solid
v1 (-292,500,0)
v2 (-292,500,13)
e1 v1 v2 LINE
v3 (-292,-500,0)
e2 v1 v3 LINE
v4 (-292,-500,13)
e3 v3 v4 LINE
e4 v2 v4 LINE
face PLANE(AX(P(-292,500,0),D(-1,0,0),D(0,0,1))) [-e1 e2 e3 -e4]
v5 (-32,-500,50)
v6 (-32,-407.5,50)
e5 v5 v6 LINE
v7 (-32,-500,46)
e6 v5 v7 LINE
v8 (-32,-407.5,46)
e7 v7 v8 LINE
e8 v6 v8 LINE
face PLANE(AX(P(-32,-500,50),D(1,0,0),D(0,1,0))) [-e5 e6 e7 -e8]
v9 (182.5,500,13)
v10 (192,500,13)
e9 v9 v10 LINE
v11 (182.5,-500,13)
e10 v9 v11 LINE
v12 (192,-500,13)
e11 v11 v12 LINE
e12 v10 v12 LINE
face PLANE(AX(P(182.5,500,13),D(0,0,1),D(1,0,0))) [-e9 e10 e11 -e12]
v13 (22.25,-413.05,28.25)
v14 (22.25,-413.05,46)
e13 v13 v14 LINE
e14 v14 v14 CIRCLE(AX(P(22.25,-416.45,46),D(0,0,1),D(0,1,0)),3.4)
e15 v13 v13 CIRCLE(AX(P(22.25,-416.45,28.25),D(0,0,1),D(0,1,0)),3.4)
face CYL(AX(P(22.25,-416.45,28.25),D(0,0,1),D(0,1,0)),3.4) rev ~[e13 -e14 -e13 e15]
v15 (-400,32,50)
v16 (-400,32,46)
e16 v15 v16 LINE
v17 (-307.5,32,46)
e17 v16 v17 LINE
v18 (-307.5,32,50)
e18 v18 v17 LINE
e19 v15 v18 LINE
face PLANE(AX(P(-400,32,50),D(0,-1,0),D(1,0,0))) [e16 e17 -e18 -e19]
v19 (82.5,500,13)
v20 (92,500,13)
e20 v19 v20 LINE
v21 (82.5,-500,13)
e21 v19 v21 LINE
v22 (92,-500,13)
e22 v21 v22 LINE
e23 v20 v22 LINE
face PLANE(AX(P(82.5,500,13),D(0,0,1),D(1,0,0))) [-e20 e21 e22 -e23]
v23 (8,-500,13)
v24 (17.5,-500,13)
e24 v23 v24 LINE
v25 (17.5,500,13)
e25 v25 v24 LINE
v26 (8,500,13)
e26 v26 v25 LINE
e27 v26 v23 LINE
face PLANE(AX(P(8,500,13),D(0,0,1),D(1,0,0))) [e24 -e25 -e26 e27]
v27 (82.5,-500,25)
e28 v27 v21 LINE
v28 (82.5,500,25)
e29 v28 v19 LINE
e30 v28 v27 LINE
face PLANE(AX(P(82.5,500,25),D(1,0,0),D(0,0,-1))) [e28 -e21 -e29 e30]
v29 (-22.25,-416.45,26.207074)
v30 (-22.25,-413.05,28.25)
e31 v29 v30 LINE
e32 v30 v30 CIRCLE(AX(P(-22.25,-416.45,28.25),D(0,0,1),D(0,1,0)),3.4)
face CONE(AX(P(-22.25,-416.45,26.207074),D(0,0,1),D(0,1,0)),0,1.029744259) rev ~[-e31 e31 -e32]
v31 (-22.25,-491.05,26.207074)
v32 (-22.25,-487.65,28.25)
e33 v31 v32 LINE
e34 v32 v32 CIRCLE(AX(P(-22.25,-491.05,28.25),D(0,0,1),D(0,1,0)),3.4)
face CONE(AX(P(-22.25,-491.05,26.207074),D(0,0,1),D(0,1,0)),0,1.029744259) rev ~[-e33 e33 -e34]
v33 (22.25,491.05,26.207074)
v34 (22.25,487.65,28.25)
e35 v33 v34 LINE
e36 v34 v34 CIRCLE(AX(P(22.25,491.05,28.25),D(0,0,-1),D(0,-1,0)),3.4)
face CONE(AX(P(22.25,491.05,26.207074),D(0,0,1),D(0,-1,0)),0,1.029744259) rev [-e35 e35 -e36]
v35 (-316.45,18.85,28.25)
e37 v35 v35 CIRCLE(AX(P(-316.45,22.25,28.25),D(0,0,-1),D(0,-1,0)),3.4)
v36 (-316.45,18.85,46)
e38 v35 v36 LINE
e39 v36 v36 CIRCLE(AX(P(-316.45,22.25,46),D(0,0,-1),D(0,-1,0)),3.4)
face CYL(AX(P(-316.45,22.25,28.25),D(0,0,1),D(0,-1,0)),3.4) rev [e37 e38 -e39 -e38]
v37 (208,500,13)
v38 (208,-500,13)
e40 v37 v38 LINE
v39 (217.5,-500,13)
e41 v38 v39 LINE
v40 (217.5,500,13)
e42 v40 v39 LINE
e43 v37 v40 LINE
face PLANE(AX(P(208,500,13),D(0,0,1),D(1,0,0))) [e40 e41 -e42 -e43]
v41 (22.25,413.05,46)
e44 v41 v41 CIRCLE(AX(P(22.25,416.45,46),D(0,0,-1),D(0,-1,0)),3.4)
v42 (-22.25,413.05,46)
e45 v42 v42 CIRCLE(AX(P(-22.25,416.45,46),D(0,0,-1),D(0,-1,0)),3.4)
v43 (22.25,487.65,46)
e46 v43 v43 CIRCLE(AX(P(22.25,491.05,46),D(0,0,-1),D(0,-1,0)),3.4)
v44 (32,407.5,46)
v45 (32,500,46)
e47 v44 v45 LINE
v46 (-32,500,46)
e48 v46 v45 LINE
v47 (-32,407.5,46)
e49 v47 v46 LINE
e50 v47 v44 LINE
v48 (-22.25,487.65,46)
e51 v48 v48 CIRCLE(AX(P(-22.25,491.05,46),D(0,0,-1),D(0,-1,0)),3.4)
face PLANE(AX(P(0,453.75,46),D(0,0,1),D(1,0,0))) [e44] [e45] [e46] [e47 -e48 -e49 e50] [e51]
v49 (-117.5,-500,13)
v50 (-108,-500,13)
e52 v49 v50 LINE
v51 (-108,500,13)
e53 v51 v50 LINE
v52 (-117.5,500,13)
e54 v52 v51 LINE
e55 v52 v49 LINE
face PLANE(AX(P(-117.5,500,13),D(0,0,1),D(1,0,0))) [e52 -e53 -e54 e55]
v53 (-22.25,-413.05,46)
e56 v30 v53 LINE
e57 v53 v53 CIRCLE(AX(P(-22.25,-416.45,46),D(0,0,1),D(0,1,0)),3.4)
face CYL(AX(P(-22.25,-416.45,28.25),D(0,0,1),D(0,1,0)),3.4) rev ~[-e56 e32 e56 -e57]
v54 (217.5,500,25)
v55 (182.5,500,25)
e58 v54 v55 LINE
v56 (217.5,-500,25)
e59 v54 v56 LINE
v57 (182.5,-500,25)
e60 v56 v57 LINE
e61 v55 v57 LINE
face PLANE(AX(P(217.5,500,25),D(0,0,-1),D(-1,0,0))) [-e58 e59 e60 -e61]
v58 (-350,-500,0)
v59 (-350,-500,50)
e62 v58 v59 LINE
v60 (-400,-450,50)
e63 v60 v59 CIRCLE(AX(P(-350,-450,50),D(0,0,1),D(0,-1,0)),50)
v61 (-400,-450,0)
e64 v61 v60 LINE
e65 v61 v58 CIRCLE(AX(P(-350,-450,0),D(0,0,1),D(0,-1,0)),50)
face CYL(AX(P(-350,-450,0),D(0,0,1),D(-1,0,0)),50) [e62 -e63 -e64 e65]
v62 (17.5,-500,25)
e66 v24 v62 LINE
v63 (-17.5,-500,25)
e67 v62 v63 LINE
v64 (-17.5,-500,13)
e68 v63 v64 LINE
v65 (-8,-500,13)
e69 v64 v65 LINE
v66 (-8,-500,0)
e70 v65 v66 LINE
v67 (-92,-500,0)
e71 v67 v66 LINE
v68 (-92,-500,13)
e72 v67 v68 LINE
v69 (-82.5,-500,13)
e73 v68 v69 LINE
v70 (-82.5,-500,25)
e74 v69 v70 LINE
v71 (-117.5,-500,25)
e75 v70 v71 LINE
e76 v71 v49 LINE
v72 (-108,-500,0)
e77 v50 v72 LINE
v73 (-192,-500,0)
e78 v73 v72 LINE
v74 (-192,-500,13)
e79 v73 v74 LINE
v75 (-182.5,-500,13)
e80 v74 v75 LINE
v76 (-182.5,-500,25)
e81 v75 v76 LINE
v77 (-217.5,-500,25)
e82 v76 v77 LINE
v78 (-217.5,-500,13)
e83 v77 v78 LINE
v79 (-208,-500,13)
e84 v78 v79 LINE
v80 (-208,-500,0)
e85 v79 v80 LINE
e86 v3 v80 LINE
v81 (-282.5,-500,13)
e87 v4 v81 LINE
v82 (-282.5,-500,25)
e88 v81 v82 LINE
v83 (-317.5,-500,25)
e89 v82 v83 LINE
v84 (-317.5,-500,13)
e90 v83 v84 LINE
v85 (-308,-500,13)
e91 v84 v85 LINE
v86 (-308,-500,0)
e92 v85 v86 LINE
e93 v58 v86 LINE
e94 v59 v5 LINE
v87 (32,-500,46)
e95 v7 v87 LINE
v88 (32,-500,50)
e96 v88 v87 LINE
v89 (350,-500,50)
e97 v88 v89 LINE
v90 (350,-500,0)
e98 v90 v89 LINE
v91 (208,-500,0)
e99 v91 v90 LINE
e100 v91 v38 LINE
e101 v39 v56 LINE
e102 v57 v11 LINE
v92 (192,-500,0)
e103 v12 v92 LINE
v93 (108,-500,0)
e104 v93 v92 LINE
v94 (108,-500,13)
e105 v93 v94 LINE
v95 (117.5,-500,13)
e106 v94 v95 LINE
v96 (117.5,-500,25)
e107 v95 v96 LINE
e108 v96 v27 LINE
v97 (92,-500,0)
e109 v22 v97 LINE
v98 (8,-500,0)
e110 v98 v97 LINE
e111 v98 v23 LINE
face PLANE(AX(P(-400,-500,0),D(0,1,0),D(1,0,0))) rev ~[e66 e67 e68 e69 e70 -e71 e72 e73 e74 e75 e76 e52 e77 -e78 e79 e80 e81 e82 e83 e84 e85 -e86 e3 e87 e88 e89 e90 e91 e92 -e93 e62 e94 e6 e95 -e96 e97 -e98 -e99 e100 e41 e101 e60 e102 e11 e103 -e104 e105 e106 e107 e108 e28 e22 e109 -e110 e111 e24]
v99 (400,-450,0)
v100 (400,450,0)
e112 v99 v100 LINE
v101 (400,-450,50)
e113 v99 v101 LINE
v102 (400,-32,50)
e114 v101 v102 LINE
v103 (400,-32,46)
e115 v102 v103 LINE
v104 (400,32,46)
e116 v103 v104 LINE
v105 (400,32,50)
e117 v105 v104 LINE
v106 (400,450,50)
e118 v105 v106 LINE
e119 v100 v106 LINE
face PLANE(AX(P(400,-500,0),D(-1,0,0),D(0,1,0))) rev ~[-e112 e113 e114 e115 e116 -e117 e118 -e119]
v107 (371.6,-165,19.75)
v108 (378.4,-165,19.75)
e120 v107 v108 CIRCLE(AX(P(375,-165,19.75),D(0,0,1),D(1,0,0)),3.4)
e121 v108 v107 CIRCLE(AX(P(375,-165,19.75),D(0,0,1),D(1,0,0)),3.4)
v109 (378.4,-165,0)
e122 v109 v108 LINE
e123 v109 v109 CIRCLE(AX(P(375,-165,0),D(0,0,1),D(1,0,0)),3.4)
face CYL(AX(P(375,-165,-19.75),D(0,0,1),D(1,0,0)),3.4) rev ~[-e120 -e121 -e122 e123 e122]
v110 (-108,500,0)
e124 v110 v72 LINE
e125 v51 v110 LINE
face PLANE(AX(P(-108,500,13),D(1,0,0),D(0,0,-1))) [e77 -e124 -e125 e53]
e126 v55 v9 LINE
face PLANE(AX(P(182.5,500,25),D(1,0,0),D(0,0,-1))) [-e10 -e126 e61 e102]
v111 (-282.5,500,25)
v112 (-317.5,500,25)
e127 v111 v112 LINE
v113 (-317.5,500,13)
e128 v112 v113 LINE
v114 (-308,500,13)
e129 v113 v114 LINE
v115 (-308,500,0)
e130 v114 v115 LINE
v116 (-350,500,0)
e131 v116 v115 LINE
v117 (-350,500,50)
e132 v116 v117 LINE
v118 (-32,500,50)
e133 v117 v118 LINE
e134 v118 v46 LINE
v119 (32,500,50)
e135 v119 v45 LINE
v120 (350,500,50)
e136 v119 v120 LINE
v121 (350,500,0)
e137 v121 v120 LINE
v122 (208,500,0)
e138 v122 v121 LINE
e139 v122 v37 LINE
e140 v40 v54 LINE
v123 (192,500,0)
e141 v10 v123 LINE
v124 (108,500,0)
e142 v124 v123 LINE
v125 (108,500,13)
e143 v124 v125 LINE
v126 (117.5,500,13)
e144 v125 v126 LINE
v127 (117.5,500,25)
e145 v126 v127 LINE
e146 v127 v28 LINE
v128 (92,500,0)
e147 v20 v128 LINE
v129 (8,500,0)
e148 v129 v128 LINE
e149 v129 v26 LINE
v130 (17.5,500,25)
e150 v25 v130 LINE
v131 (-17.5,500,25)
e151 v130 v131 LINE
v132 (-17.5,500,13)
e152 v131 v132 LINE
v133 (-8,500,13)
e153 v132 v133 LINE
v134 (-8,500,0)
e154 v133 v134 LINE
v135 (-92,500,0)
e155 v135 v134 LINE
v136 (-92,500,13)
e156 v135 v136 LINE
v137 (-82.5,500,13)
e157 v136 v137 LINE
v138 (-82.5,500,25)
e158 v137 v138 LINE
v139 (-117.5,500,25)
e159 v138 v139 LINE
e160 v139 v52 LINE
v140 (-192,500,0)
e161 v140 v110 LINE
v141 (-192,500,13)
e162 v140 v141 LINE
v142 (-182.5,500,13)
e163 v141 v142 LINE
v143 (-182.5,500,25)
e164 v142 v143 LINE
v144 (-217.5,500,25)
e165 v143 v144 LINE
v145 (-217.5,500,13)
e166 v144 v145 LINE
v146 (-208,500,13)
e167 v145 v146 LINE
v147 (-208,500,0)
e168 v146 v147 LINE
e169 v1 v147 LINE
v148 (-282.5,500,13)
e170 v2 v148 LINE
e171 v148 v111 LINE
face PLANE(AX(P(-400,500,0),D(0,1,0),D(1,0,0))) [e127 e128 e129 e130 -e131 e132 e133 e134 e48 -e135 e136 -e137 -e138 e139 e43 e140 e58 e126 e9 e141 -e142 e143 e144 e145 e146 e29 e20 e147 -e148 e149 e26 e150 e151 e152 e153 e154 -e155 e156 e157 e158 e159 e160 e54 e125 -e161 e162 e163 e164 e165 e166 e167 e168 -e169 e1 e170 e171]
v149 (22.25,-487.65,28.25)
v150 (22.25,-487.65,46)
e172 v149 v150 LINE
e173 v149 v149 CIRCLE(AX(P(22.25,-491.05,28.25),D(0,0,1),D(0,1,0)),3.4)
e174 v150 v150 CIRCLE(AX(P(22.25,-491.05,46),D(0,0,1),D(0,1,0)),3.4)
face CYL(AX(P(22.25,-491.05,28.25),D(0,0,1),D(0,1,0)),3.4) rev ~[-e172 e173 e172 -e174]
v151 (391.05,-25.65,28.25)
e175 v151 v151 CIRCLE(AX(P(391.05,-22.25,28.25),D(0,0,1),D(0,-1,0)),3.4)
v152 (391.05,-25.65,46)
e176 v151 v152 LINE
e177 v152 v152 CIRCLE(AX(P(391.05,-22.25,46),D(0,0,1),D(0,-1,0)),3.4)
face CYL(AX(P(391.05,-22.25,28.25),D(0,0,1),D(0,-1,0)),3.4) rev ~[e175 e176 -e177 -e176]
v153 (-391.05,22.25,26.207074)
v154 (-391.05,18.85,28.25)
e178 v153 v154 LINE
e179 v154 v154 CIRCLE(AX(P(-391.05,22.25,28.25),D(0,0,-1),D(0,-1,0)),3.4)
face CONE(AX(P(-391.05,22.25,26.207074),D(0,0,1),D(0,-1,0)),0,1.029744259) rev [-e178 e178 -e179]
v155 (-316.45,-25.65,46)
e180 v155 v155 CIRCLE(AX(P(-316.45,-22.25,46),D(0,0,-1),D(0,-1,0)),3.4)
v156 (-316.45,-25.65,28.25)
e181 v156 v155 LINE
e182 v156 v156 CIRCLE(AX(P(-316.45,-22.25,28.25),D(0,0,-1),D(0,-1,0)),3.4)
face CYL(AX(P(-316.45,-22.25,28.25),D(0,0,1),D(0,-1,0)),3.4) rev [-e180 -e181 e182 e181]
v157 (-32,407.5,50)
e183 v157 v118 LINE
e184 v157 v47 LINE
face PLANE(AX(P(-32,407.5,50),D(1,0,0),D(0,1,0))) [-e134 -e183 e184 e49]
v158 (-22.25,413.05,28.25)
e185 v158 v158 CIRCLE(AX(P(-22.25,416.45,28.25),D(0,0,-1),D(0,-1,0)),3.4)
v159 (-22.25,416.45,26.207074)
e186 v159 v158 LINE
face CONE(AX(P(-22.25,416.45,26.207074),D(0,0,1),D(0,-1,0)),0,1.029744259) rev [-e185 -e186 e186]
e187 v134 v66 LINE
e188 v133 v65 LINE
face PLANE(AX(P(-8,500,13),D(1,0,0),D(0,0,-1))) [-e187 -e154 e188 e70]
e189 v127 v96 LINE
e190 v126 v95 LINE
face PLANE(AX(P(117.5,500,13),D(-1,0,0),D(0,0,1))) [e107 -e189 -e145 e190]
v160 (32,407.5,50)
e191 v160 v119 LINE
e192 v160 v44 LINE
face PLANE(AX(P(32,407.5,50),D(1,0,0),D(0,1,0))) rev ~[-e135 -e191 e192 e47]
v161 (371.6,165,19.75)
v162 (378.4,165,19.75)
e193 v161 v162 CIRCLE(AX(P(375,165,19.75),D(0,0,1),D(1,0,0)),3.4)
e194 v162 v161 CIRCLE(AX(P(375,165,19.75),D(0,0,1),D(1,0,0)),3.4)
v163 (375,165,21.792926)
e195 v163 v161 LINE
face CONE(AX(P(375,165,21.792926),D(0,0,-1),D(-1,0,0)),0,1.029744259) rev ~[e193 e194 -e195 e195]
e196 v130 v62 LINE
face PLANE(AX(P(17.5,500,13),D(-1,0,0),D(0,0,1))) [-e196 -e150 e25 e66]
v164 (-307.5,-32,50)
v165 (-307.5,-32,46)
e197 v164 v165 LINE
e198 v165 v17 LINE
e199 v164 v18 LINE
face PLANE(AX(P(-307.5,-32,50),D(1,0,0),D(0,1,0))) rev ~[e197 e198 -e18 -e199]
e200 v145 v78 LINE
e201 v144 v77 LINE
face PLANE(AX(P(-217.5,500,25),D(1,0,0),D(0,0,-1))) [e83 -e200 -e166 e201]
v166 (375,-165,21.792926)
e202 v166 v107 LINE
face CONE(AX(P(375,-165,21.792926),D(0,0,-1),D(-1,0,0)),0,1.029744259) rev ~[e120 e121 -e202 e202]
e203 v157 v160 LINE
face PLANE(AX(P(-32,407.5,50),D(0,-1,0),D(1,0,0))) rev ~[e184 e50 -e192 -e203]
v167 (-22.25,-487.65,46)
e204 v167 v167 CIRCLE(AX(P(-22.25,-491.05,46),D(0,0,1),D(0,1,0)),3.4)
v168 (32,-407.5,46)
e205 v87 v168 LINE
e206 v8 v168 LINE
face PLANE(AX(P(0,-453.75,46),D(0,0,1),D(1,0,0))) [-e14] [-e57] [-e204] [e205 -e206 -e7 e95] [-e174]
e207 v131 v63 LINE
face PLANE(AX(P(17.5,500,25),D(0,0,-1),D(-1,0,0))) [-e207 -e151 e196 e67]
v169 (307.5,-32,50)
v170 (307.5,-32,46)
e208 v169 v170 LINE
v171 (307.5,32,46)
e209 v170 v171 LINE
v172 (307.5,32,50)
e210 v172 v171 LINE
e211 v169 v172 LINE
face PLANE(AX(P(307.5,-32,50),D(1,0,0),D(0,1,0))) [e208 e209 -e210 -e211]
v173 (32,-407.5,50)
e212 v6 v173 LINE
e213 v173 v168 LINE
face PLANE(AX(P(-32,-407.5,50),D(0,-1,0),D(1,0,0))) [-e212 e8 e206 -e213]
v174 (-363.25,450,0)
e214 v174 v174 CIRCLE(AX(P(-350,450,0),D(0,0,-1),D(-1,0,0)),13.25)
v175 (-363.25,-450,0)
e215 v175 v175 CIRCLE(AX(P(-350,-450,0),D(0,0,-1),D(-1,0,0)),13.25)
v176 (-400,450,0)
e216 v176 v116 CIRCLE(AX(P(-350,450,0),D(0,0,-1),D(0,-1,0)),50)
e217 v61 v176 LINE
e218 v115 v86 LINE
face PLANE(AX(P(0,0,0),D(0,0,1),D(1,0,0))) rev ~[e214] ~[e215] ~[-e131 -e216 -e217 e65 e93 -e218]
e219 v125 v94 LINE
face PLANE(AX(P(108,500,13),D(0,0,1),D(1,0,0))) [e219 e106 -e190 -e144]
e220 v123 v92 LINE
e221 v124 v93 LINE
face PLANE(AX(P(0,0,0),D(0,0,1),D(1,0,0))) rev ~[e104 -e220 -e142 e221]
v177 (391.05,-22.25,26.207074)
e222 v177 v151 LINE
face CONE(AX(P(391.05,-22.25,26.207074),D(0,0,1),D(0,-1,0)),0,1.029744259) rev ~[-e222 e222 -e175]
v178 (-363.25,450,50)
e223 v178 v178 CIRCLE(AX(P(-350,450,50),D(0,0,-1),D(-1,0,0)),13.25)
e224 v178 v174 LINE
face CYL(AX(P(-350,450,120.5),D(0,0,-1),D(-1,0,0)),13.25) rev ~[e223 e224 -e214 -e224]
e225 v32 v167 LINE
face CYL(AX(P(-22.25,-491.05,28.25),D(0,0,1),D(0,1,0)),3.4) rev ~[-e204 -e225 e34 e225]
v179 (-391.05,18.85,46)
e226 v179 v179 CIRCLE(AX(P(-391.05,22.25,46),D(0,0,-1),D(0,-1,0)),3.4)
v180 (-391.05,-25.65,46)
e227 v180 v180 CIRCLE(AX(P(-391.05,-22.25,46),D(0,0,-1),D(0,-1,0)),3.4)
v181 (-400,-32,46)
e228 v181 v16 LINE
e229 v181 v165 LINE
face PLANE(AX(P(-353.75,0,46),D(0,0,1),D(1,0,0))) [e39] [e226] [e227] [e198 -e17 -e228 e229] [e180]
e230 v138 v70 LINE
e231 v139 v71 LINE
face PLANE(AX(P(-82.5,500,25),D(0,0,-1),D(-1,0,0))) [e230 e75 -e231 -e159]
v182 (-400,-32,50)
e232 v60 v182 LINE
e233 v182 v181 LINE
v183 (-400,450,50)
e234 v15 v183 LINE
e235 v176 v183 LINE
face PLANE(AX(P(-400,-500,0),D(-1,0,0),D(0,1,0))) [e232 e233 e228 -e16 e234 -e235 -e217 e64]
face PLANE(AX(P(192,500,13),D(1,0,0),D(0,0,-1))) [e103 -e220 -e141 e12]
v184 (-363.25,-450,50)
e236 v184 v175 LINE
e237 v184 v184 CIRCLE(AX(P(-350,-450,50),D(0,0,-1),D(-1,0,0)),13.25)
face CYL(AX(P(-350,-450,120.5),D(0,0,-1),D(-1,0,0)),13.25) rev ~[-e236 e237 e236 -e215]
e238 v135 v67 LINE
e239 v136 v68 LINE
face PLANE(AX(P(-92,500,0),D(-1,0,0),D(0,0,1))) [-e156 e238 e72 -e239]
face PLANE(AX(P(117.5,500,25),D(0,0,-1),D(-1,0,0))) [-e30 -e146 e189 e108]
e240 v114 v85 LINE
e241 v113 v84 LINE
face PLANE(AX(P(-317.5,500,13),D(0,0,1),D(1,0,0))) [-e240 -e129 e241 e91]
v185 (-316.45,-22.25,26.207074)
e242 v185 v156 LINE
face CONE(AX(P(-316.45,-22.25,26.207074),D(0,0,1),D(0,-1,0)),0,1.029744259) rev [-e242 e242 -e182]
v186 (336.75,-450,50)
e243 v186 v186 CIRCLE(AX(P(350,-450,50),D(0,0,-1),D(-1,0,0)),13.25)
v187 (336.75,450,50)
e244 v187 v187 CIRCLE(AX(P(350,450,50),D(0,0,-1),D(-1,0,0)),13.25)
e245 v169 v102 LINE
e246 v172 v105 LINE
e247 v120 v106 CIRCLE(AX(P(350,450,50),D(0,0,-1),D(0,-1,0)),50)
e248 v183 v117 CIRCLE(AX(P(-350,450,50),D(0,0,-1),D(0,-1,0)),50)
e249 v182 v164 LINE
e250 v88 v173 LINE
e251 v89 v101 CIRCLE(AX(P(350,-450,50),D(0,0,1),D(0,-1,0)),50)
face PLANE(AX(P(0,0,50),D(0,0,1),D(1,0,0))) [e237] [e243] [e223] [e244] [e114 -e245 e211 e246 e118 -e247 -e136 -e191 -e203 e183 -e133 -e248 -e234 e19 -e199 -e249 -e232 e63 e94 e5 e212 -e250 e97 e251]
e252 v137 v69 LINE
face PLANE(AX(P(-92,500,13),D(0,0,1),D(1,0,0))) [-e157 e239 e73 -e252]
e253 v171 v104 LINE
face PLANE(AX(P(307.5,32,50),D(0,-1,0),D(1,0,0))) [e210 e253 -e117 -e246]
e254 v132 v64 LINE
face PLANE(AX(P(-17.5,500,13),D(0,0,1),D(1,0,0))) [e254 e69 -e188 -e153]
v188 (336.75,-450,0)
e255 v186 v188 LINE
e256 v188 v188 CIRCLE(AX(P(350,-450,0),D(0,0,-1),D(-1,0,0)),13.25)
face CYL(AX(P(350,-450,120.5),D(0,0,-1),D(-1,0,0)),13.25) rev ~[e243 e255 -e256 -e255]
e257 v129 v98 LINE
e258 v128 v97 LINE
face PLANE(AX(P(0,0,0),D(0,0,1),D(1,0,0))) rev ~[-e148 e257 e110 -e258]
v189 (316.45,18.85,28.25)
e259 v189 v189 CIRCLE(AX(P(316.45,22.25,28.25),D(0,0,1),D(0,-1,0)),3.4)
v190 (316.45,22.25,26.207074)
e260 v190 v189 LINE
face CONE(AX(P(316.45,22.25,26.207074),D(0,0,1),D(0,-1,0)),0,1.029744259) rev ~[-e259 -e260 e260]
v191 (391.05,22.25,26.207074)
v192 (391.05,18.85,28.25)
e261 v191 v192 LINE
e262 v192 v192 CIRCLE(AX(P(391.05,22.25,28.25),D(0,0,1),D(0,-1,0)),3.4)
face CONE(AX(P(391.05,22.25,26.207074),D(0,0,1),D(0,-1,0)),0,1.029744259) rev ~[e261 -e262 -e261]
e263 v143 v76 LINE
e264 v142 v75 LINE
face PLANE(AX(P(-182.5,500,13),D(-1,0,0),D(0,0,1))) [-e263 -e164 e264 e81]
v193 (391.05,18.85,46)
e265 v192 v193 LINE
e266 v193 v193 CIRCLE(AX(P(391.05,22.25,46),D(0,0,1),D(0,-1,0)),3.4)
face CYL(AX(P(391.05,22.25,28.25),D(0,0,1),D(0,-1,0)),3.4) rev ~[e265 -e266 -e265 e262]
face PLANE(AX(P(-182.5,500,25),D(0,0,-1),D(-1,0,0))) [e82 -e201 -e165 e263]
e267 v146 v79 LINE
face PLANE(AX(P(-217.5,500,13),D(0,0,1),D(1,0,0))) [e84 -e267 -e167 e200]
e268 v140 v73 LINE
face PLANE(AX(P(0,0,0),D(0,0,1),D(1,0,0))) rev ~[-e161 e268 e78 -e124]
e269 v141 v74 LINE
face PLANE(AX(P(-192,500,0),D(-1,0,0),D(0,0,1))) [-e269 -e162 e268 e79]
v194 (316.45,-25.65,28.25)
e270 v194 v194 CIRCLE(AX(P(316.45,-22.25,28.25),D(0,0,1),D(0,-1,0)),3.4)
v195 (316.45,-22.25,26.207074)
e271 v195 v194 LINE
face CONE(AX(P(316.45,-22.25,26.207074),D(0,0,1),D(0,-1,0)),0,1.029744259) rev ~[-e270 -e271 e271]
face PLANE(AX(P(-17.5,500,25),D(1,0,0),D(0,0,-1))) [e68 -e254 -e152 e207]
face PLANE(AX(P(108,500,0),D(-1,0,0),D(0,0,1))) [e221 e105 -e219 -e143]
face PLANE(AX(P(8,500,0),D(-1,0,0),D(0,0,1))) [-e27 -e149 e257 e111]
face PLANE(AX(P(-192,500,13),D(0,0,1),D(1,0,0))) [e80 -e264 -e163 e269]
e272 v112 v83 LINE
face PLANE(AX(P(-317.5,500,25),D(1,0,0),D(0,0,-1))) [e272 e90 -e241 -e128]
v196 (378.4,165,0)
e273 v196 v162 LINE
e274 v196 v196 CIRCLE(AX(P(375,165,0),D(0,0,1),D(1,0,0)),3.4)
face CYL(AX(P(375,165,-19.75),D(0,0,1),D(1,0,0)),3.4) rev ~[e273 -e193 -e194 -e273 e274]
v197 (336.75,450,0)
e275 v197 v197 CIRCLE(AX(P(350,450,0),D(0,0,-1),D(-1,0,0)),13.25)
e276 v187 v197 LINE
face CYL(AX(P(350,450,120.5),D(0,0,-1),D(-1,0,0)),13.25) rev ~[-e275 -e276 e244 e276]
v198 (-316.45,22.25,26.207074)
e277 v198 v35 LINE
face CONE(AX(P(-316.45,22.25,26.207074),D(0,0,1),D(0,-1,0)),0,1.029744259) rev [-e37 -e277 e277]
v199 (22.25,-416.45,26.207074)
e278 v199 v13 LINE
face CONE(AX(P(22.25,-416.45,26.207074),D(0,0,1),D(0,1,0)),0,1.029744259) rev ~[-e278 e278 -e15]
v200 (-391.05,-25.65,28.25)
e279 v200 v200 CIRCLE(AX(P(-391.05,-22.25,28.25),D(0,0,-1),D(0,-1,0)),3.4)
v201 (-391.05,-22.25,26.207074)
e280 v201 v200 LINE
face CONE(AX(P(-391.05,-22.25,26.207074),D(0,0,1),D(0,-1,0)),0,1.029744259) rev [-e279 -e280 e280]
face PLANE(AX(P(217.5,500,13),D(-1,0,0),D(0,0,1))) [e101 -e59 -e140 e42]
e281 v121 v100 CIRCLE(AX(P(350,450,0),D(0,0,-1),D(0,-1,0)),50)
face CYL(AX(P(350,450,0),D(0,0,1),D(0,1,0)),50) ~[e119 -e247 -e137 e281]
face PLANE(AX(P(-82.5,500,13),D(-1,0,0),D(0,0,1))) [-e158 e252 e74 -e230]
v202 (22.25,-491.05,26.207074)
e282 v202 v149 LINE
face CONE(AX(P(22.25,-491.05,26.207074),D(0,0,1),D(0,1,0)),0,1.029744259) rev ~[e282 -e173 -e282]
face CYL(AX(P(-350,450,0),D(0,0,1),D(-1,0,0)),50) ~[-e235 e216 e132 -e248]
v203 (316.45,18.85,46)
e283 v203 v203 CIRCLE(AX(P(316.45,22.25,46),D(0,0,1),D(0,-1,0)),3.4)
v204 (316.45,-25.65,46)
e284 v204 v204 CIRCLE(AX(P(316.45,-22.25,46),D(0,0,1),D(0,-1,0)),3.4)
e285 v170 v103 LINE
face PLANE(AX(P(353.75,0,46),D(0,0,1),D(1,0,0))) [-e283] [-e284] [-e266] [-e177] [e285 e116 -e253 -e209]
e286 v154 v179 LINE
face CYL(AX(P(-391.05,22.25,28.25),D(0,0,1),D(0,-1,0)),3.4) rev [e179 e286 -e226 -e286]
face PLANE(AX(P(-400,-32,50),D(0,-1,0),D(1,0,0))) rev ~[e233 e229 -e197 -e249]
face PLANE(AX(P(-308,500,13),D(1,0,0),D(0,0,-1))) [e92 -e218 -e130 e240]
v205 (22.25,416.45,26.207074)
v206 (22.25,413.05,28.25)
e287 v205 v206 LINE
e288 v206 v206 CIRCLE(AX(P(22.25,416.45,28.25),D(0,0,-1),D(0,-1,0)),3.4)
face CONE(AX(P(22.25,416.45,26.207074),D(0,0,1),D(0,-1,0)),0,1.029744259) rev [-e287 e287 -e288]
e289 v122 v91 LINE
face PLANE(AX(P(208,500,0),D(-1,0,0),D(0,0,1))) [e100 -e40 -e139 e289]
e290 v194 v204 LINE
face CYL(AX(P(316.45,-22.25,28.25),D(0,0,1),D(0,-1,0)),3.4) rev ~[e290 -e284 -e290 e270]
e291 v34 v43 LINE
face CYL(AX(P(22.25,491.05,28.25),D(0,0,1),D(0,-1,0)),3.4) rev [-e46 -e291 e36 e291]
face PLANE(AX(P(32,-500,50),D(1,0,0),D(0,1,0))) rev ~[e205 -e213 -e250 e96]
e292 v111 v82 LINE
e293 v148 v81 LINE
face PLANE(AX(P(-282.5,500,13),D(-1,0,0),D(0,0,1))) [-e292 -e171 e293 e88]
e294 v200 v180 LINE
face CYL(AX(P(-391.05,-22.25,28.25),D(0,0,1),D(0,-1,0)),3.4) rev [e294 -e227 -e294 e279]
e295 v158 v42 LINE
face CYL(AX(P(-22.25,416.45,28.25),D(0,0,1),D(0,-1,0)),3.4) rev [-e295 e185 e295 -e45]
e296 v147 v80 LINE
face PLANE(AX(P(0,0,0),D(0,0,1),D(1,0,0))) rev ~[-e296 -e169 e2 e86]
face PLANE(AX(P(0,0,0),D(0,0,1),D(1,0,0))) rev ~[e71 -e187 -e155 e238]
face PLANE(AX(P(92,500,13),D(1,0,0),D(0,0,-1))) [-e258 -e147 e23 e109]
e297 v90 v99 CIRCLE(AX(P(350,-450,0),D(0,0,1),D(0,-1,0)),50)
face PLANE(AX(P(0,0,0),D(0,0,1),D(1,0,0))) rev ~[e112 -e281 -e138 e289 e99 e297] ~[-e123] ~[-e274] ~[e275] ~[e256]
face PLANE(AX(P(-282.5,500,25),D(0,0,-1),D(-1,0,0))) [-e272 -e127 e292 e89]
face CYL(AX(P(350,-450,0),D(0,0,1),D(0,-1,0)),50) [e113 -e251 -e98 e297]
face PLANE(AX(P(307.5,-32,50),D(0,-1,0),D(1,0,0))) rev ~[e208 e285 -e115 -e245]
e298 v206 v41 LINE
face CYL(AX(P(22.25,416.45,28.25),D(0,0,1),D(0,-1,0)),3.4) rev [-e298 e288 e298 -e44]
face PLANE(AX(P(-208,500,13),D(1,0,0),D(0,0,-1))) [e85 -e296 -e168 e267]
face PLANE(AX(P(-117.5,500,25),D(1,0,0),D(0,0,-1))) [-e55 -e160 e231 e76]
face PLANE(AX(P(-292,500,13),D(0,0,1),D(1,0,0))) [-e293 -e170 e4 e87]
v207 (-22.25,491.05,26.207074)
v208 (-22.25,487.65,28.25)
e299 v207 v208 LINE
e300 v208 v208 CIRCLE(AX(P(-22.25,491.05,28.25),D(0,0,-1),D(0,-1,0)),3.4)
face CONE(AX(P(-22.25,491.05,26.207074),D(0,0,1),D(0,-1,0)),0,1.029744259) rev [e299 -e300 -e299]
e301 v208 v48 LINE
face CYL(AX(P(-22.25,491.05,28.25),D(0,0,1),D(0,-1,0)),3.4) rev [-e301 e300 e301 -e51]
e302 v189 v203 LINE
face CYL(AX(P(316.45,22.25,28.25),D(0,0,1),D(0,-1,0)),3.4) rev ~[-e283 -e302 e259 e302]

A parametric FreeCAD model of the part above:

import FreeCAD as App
import Part
import Sketcher

V = App.Vector
Q = App.Units.Quantity


def edges_at(feature, points):
    """Names of the edges that pass closest to the given points."""
    edges = feature.Shape.Edges
    near = lambda p: min(range(len(edges)), key=lambda i: edges[i].distToShape(Part.Vertex(*p))[0])
    return sorted({f"Edge{near(p) + 1}" for p in points})


def add_polygon(sketch, points):
    """Adds a closed chain of lines whose ends are joined by coincident constraints."""
    first, n = sketch.GeometryCount, len(points)
    for a, b in zip(points, points[1:] + points[:1]):
        sketch.addGeometry(Part.LineSegment(App.Vector(*a, 0), App.Vector(*b, 0)), False)
    for i in range(n):
        sketch.addConstraint(Sketcher.Constraint("Coincident", first + i, 2, first + (i + 1) % n, 1))

doc = App.newDocument("Part")
body = doc.addObject("PartDesign::Body", "Body")

# Sketch on XY plane
sketch1 = body.newObject("Sketcher::SketchObject", "Sketch")
sketch1.AttachmentSupport = (doc.getObject("XY_Plane"), [""])
sketch1.MapMode = "FlatFace"
add_polygon(sketch1, [(-400, 500), (-400, -500), (400, -500), (400, 500)])  # lines 0-3
sketch1.addConstraint(Sketcher.Constraint("Vertical", 0))
sketch1.addConstraint(Sketcher.Constraint("Horizontal", 1))
sketch1.addConstraint(Sketcher.Constraint("Vertical", 2))
sketch1.addConstraint(Sketcher.Constraint("Horizontal", 3))
sketch1.addConstraint(Sketcher.Constraint("Symmetric", 0, 2, 2, 2, -1, 1))
sketch1.addConstraint(Sketcher.Constraint("DistanceX", 1, 1, 1, 2, 800.0))
sketch1.addConstraint(Sketcher.Constraint("DistanceY", 0, 2, 0, 1, 1000.0))
pad1 = body.newObject("PartDesign::Pad", "Pad")
pad1.Profile = sketch1
pad1.Length = 50

# Sketch on XZ plane
sketch2 = body.newObject("Sketcher::SketchObject", "Sketch001")
sketch2.AttachmentSupport = (doc.getObject("XZ_Plane"), [""])
sketch2.MapMode = "FlatFace"
sketch2.AttachmentOffset = App.Placement(V(0, 0, -500), App.Rotation())
add_polygon(sketch2, [(8, 0), (-8, 0), (-8, 13), (-18, 13), (-18, 25), (18, 25), (18, 13), (8, 13)])  # lines 0-7
sketch2.addConstraint(Sketcher.Constraint("Horizontal", 0))
sketch2.addConstraint(Sketcher.Constraint("Vertical", 1))
sketch2.addConstraint(Sketcher.Constraint("Horizontal", 2))
sketch2.addConstraint(Sketcher.Constraint("Vertical", 3))
sketch2.addConstraint(Sketcher.Constraint("Horizontal", 4))
sketch2.addConstraint(Sketcher.Constraint("Vertical", 5))
sketch2.addConstraint(Sketcher.Constraint("Horizontal", 6))
sketch2.addConstraint(Sketcher.Constraint("Vertical", 7))
sketch2.addConstraint(Sketcher.Constraint("Symmetric", 0, 2, 7, 2, -1, 1))
sketch2.addConstraint(Sketcher.Constraint("Symmetric", 2, 2, 5, 2, -2))
sketch2.addConstraint(Sketcher.Constraint("DistanceX", 0, 2, 0, 1, 16.0))
sketch2.addConstraint(Sketcher.Constraint("DistanceX", 4, 1, 4, 2, 35.0))
sketch2.addConstraint(Sketcher.Constraint("DistanceY", 1, 1, 1, 2, 13.0))
sketch2.addConstraint(Sketcher.Constraint("DistanceY", 3, 1, 3, 2, 12.0))
pocket1 = body.newObject("PartDesign::Pocket", "Pocket")
pocket1.Profile = sketch2
pocket1.Type = "ThroughAll"
pocket1.Reversed = True
doc.recompute()

linearpattern = body.newObject("PartDesign::LinearPattern", "LinearPattern")
linearpattern.Originals = [pocket1]
linearpattern.Direction = (doc.getObject("X_Axis"), [""])
linearpattern.Mode = "offset"
linearpattern.Offset = 100
linearpattern.Occurrences = 4
linearpattern.Reversed = True
body.Tip = linearpattern
doc.recompute()

linearpattern2 = body.newObject("PartDesign::LinearPattern", "LinearPattern001")
linearpattern2.Originals = [pocket1]
linearpattern2.Direction = (doc.getObject("X_Axis"), [""])
linearpattern2.Mode = "offset"
linearpattern2.Offset = 100
linearpattern2.Occurrences = 3
body.Tip = linearpattern2
doc.recompute()

fillet = body.newObject("PartDesign::Fillet", "Fillet")
fillet.Base = (linearpattern2, edges_at(linearpattern2, [
    (400, -500, 25),
    (-400, -500, 25),
    (-400, 500, 25),
    (400, 500, 25),
]))
fillet.Radius = 50

# Sketch on XY plane
sketch3 = body.newObject("Sketcher::SketchObject", "Sketch002")
sketch3.AttachmentSupport = (doc.getObject("XY_Plane"), [""])
sketch3.MapMode = "FlatFace"
sketch3.AttachmentOffset = App.Placement(V(0, 0, 50), App.Rotation())
add_polygon(sketch3, [(-32, 500), (-32, 408), (32, 408), (32, 500)])  # lines 0-3
add_polygon(sketch3, [(-400, 32), (-400, -32), (-308, -32), (-308, 32)])  # lines 4-7
add_polygon(sketch3, [(308, 32), (308, -32), (400, -32), (400, 32)])  # lines 8-11
add_polygon(sketch3, [(-32, -408), (-32, -500), (32, -500), (32, -408)])  # lines 12-15
sketch3.addConstraint(Sketcher.Constraint("Vertical", 0))
sketch3.addConstraint(Sketcher.Constraint("Horizontal", 1))
sketch3.addConstraint(Sketcher.Constraint("Vertical", 2))
sketch3.addConstraint(Sketcher.Constraint("Horizontal", 3))
sketch3.addConstraint(Sketcher.Constraint("Vertical", 4))
sketch3.addConstraint(Sketcher.Constraint("Horizontal", 5))
sketch3.addConstraint(Sketcher.Constraint("Vertical", 6))
sketch3.addConstraint(Sketcher.Constraint("Horizontal", 7))
sketch3.addConstraint(Sketcher.Constraint("Vertical", 8))
sketch3.addConstraint(Sketcher.Constraint("Horizontal", 9))
sketch3.addConstraint(Sketcher.Constraint("Vertical", 10))
sketch3.addConstraint(Sketcher.Constraint("Horizontal", 11))
sketch3.addConstraint(Sketcher.Constraint("Vertical", 12))
sketch3.addConstraint(Sketcher.Constraint("Horizontal", 13))
sketch3.addConstraint(Sketcher.Constraint("Vertical", 14))
sketch3.addConstraint(Sketcher.Constraint("Horizontal", 15))
sketch3.addConstraint(Sketcher.Constraint("Symmetric", 6, 2, 8, 2, -1, 1))
sketch3.addConstraint(Sketcher.Constraint("Symmetric", 4, 2, 10, 2, -1, 1))
sketch3.addConstraint(Sketcher.Constraint("Symmetric", 2, 2, 12, 2, -1, 1))
sketch3.addConstraint(Sketcher.Constraint("Symmetric", 0, 2, 14, 2, -1, 1))
sketch3.addConstraint(Sketcher.Constraint("Horizontal", 5, 2, 8, 2))
sketch3.addConstraint(Sketcher.Constraint("Vertical", 3, 2, 12, 2))
sketch3.addConstraint(Sketcher.Constraint("Equal", 11, 0))
sketch3.addConstraint(Sketcher.Constraint("Equal", 15, 4))
sketch3.addConstraint(Sketcher.Constraint("DistanceX", 1, 1, 1, 2, 64.0))
sketch3.addConstraint(Sketcher.Constraint("DistanceX", 5, 1, 5, 2, 92.5))
sketch3.addConstraint(Sketcher.Constraint("DistanceY", -1, 1, 2, 2, 500.0))
sketch3.addConstraint(Sketcher.Constraint("DistanceX", 4, 2, -1, 1, 400.0))
pocket2 = body.newObject("PartDesign::Pocket", "Pocket001")
pocket2.Profile = sketch3
pocket2.Length = 4

# Sketch on XY plane
sketch4 = body.newObject("Sketcher::SketchObject", "Sketch003")
sketch4.AttachmentSupport = (doc.getObject("XY_Plane"), [""])
sketch4.MapMode = "FlatFace"
sketch4.AttachmentOffset = App.Placement(V(0, 0, 50), App.Rotation())
sketch4.addGeometry(Part.Circle(V(-350, 450, 0), V(0, 0, 1), 13), False)
sketch4.addGeometry(Part.Circle(V(350, 450, 0), V(0, 0, 1), 13), False)
sketch4.addGeometry(Part.Circle(V(350, -450, 0), V(0, 0, 1), 13), False)
sketch4.addGeometry(Part.Circle(V(-350, -450, 0), V(0, 0, 1), 13), False)
sketch4.addConstraint(Sketcher.Constraint("Equal", 0, 1))
sketch4.addConstraint(Sketcher.Constraint("Equal", 1, 2))
sketch4.addConstraint(Sketcher.Constraint("Equal", 2, 3))
sketch4.addConstraint(Sketcher.Constraint("Symmetric", 0, 3, 2, 3, -1, 1))
sketch4.addConstraint(Sketcher.Constraint("Symmetric", 1, 3, 3, 3, -1, 1))
sketch4.addConstraint(Sketcher.Constraint("Symmetric", 0, 3, 1, 3, -2))
sketch4.addConstraint(Sketcher.Constraint("Diameter", 0, 26.5))
sketch4.addConstraint(Sketcher.Constraint("DistanceX", 0, 3, -1, 1, 350.0))
sketch4.addConstraint(Sketcher.Constraint("DistanceY", -1, 1, 0, 3, 450.0))
doc.recompute()
hole = body.newObject("PartDesign::Hole", "Hole")
hole.Profile = sketch4
hole.ThreadType = "None"
hole.Diameter = 26.5
hole.DepthType = "Dimension"
hole.Depth = 70.5
hole.DrillPoint = "Angled"
hole.DrillPointAngle = 118

# Sketch on XY plane
sketch5 = body.newObject("Sketcher::SketchObject", "Sketch004")
sketch5.AttachmentSupport = (doc.getObject("XY_Plane"), [""])
sketch5.MapMode = "FlatFace"
sketch5.addGeometry(Part.Circle(V(375, -165, 0), V(0, 0, 1), 3.4), False)
sketch5.addGeometry(Part.Circle(V(375, 165, 0), V(0, 0, 1), 3.4), False)
sketch5.addConstraint(Sketcher.Constraint("Equal", 0, 1))
sketch5.addConstraint(Sketcher.Constraint("Symmetric", 0, 3, 1, 3, -1))
sketch5.addConstraint(Sketcher.Constraint("Diameter", 0, 6.8))
sketch5.addConstraint(Sketcher.Constraint("DistanceX", -1, 1, 0, 3, 375.0))
sketch5.addConstraint(Sketcher.Constraint("DistanceY", 0, 3, -1, 1, 165.0))
doc.recompute()
hole2 = body.newObject("PartDesign::Hole", "Hole001")
hole2.Profile = sketch5
hole2.ThreadType = "None"
hole2.Diameter = 6.8
hole2.DepthType = "Dimension"
hole2.Depth = 19.75
hole2.DrillPoint = "Angled"
hole2.DrillPointAngle = 118
hole2.Reversed = True

# Sketch on YZ plane
sketch6 = body.newObject("Sketcher::SketchObject", "Sketch005")
sketch6.AttachmentSupport = (doc.getObject("YZ_Plane"), [""])
sketch6.MapMode = "FlatFace"
sketch6.AttachmentOffset = App.Placement(V(0, 0, -22.25), App.Rotation())
add_polygon(sketch6, [(416.4, 26.2), (416.4, 46), (413.1, 46), (413.1, 28.2)])  # lines 0-3
sketch6.addGeometry(Part.LineSegment(V(416.4, 46, 0), V(416.4, 26.2, 0)), True)  # axis
sketch6.addConstraint(Sketcher.Constraint("Vertical", 0))
sketch6.addConstraint(Sketcher.Constraint("Horizontal", 1))
sketch6.addConstraint(Sketcher.Constraint("Vertical", 2))
sketch6.addConstraint(Sketcher.Constraint("Vertical", 4))
sketch6.addConstraint(Sketcher.Constraint("Coincident", 4, 1, 0, 2))
sketch6.addConstraint(Sketcher.Constraint("Equal", 0, 4))
sketch6.addConstraint(Sketcher.Constraint("Angle", 3, Q("-31 deg")))
sketch6.addConstraint(Sketcher.Constraint("DistanceX", 1, 2, 1, 1, 3.4))
sketch6.addConstraint(Sketcher.Constraint("DistanceY", -1, 1, 0, 2, 46.0))
sketch6.addConstraint(Sketcher.Constraint("DistanceY", 2, 2, 2, 1, 17.75))
sketch6.addConstraint(Sketcher.Constraint("DistanceX", -1, 1, 0, 2, 416.45))
groove = body.newObject("PartDesign::Groove", "Groove")
groove.Profile = sketch6
groove.ReferenceAxis = (sketch6, ["Axis0"])
groove.Angle = 360
doc.recompute()

linearpattern3 = body.newObject("PartDesign::LinearPattern", "LinearPattern002")
linearpattern3.Originals = [groove]
linearpattern3.Direction = (doc.getObject("X_Axis"), [""])
linearpattern3.Mode = "offset"
linearpattern3.Offset = 44.5
linearpattern3.Occurrences = 2
body.Tip = linearpattern3
doc.recompute()

datumline = body.newObject("PartDesign::Line", "DatumLine")
datumline.Placement = App.Placement(V(0, 0, 0), App.Rotation(V(0, 0, 1), V(0.512293198, 0.858810619, 0)))
linearpattern4 = body.newObject("PartDesign::LinearPattern", "LinearPattern003")
linearpattern4.Originals = [groove]
linearpattern4.Direction = (datumline, [""])
linearpattern4.Mode = "offset"
linearpattern4.Offset = 86.864319
linearpattern4.Occurrences = 2
body.Tip = linearpattern4
doc.recompute()

linearpattern5 = body.newObject("PartDesign::LinearPattern", "LinearPattern004")
linearpattern5.Originals = [groove]
linearpattern5.Direction = (doc.getObject("Y_Axis"), [""])
linearpattern5.Mode = "offset"
linearpattern5.Offset = 74.6
linearpattern5.Occurrences = 2
body.Tip = linearpattern5
doc.recompute()

mirrored = body.newObject("PartDesign::Mirrored", "Mirrored")
mirrored.Originals = [groove]
mirrored.MirrorPlane = (doc.getObject("XZ_Plane"), [""])
body.Tip = mirrored

# Sketch on YZ plane
sketch7 = body.newObject("Sketcher::SketchObject", "Sketch006")
sketch7.AttachmentSupport = (doc.getObject("YZ_Plane"), [""])
sketch7.MapMode = "FlatFace"
sketch7.AttachmentOffset = App.Placement(V(0, 0, 22.25), App.Rotation())
add_polygon(sketch7, [(-416.4, 46), (-416.4, 26.2), (-413.1, 28.2), (-413.1, 46)])  # lines 0-3
sketch7.addGeometry(Part.LineSegment(V(-416.4, 26.2, 0), V(-416.4, 46, 0)), True)  # axis
sketch7.addConstraint(Sketcher.Constraint("Vertical", 0))
sketch7.addConstraint(Sketcher.Constraint("Vertical", 2))
sketch7.addConstraint(Sketcher.Constraint("Horizontal", 3))
sketch7.addConstraint(Sketcher.Constraint("Vertical", 4))
sketch7.addConstraint(Sketcher.Constraint("Coincident", 4, 1, 0, 2))
sketch7.addConstraint(Sketcher.Constraint("Horizontal", 2, 2, 4, 2))
sketch7.addConstraint(Sketcher.Constraint("Angle", 1, Q("31 deg")))
sketch7.addConstraint(Sketcher.Constraint("DistanceX", 3, 2, 3, 1, 3.4))
sketch7.addConstraint(Sketcher.Constraint("DistanceY", -1, 1, 2, 2, 46.0))
sketch7.addConstraint(Sketcher.Constraint("DistanceY", 2, 1, 2, 2, 17.75))
sketch7.addConstraint(Sketcher.Constraint("DistanceX", 0, 2, -1, 1, 416.45))
groove2 = body.newObject("PartDesign::Groove", "Groove001")
groove2.Profile = sketch7
groove2.ReferenceAxis = (sketch7, ["Axis0"])
groove2.Angle = 360

# Sketch on YZ plane
sketch8 = body.newObject("Sketcher::SketchObject", "Sketch007")
sketch8.AttachmentSupport = (doc.getObject("YZ_Plane"), [""])
sketch8.MapMode = "FlatFace"
sketch8.AttachmentOffset = App.Placement(V(0, 0, 22.25), App.Rotation())
add_polygon(sketch8, [(-491.1, 46), (-491.1, 26.2), (-487.6, 28.2), (-487.6, 46)])  # lines 0-3
sketch8.addGeometry(Part.LineSegment(V(-491.1, 26.2, 0), V(-491.1, 46, 0)), True)  # axis
sketch8.addConstraint(Sketcher.Constraint("Vertical", 0))
sketch8.addConstraint(Sketcher.Constraint("Vertical", 2))
sketch8.addConstraint(Sketcher.Constraint("Horizontal", 3))
sketch8.addConstraint(Sketcher.Constraint("Vertical", 4))
sketch8.addConstraint(Sketcher.Constraint("Coincident", 4, 1, 0, 2))
sketch8.addConstraint(Sketcher.Constraint("Horizontal", 2, 2, 4, 2))
sketch8.addConstraint(Sketcher.Constraint("Angle", 1, Q("31 deg")))
sketch8.addConstraint(Sketcher.Constraint("DistanceX", 3, 2, 3, 1, 3.4))
sketch8.addConstraint(Sketcher.Constraint("DistanceY", -1, 1, 2, 2, 46.0))
sketch8.addConstraint(Sketcher.Constraint("DistanceY", 2, 1, 2, 2, 17.75))
sketch8.addConstraint(Sketcher.Constraint("DistanceX", 0, 2, -1, 1, 491.05))
groove3 = body.newObject("PartDesign::Groove", "Groove002")
groove3.Profile = sketch8
groove3.ReferenceAxis = (sketch8, ["Axis0"])
groove3.Angle = 360

# Sketch on YZ plane
sketch9 = body.newObject("Sketcher::SketchObject", "Sketch008")
sketch9.AttachmentSupport = (doc.getObject("YZ_Plane"), [""])
sketch9.MapMode = "FlatFace"
sketch9.AttachmentOffset = App.Placement(V(0, 0, -22.25), App.Rotation())
add_polygon(sketch9, [(-491.1, 46), (-491.1, 26.2), (-487.6, 28.2), (-487.6, 46)])  # lines 0-3
sketch9.addGeometry(Part.LineSegment(V(-491.1, 26.2, 0), V(-491.1, 46, 0)), True)  # axis
sketch9.addConstraint(Sketcher.Constraint("Vertical", 0))
sketch9.addConstraint(Sketcher.Constraint("Vertical", 2))
sketch9.addConstraint(Sketcher.Constraint("Horizontal", 3))
sketch9.addConstraint(Sketcher.Constraint("Vertical", 4))
sketch9.addConstraint(Sketcher.Constraint("Coincident", 4, 1, 0, 2))
sketch9.addConstraint(Sketcher.Constraint("Horizontal", 2, 2, 4, 2))
sketch9.addConstraint(Sketcher.Constraint("Angle", 1, Q("31 deg")))
sketch9.addConstraint(Sketcher.Constraint("DistanceX", 3, 2, 3, 1, 3.4))
sketch9.addConstraint(Sketcher.Constraint("DistanceY", -1, 1, 2, 2, 46.0))
sketch9.addConstraint(Sketcher.Constraint("DistanceY", 2, 1, 2, 2, 17.75))
sketch9.addConstraint(Sketcher.Constraint("DistanceX", 0, 2, -1, 1, 491.05))
groove4 = body.newObject("PartDesign::Groove", "Groove003")
groove4.Profile = sketch9
groove4.ReferenceAxis = (sketch9, ["Axis0"])
groove4.Angle = 360

# Sketch on YZ plane
sketch10 = body.newObject("Sketcher::SketchObject", "Sketch009")
sketch10.AttachmentSupport = (doc.getObject("YZ_Plane"), [""])
sketch10.MapMode = "FlatFace"
sketch10.AttachmentOffset = App.Placement(V(0, 0, -391.05), App.Rotation())
add_polygon(sketch10, [(-22.2, 26.2), (-22.2, 46), (-25.6, 46), (-25.6, 28.2)])  # lines 0-3
sketch10.addGeometry(Part.LineSegment(V(-22.2, 46, 0), V(-22.2, 26.2, 0)), True)  # axis
sketch10.addConstraint(Sketcher.Constraint("Vertical", 0))
sketch10.addConstraint(Sketcher.Constraint("Horizontal", 1))
sketch10.addConstraint(Sketcher.Constraint("Vertical", 2))
sketch10.addConstraint(Sketcher.Constraint("Vertical", 4))
sketch10.addConstraint(Sketcher.Constraint("Coincident", 4, 1, 0, 2))
sketch10.addConstraint(Sketcher.Constraint("Equal", 0, 4))
sketch10.addConstraint(Sketcher.Constraint("Angle", 3, Q("-31 deg")))
sketch10.addConstraint(Sketcher.Constraint("DistanceX", 1, 2, 1, 1, 3.4))
sketch10.addConstraint(Sketcher.Constraint("DistanceY", -1, 1, 0, 2, 46.0))
sketch10.addConstraint(Sketcher.Constraint("DistanceY", 2, 2, 2, 1, 17.75))
sketch10.addConstraint(Sketcher.Constraint("DistanceX", 0, 2, -1, 1, 22.25))
groove5 = body.newObject("PartDesign::Groove", "Groove004")
groove5.Profile = sketch10
groove5.ReferenceAxis = (sketch10, ["Axis0"])
groove5.Angle = 360
doc.recompute()

linearpattern6 = body.newObject("PartDesign::LinearPattern", "LinearPattern005")
linearpattern6.Originals = [groove5]
linearpattern6.Direction = (doc.getObject("Y_Axis"), [""])
linearpattern6.Mode = "offset"
linearpattern6.Offset = 44.5
linearpattern6.Occurrences = 2
body.Tip = linearpattern6
doc.recompute()

datumline2 = body.newObject("PartDesign::Line", "DatumLine001")
datumline2.Placement = App.Placement(V(0, 0, 0), App.Rotation(V(0, 0, 1), V(0.858810619, 0.512293198, 0)))
linearpattern7 = body.newObject("PartDesign::LinearPattern", "LinearPattern006")
linearpattern7.Originals = [groove5]
linearpattern7.Direction = (datumline2, [""])
linearpattern7.Mode = "offset"
linearpattern7.Offset = 86.864319
linearpattern7.Occurrences = 2
body.Tip = linearpattern7
doc.recompute()

linearpattern8 = body.newObject("PartDesign::LinearPattern", "LinearPattern007")
linearpattern8.Originals = [groove5]
linearpattern8.Direction = (doc.getObject("X_Axis"), [""])
linearpattern8.Mode = "offset"
linearpattern8.Offset = 74.6
linearpattern8.Occurrences = 2
body.Tip = linearpattern8
doc.recompute()

mirrored2 = body.newObject("PartDesign::Mirrored", "Mirrored001")
mirrored2.Originals = [groove5]
mirrored2.MirrorPlane = (doc.getObject("YZ_Plane"), [""])
body.Tip = mirrored2

# Sketch on YZ plane
sketch11 = body.newObject("Sketcher::SketchObject", "Sketch010")
sketch11.AttachmentSupport = (doc.getObject("YZ_Plane"), [""])
sketch11.MapMode = "FlatFace"
sketch11.AttachmentOffset = App.Placement(V(0, 0, 391.05), App.Rotation())
add_polygon(sketch11, [(22.2, 46), (22.2, 26.2), (18.9, 28.2), (18.9, 46)])  # lines 0-3
sketch11.addGeometry(Part.LineSegment(V(22.2, 26.2, 0), V(22.2, 46, 0)), True)  # axis
sketch11.addConstraint(Sketcher.Constraint("Vertical", 0))
sketch11.addConstraint(Sketcher.Constraint("Vertical", 2))
sketch11.addConstraint(Sketcher.Constraint("Horizontal", 3))
sketch11.addConstraint(Sketcher.Constraint("Vertical", 4))
sketch11.addConstraint(Sketcher.Constraint("Coincident", 4, 1, 0, 2))
sketch11.addConstraint(Sketcher.Constraint("Horizontal", 2, 2, 4, 2))
sketch11.addConstraint(Sketcher.Constraint("Angle", 1, Q("149 deg")))
sketch11.addConstraint(Sketcher.Constraint("DistanceX", 3, 1, 3, 2, 3.4))
sketch11.addConstraint(Sketcher.Constraint("DistanceY", -1, 1, 2, 2, 46.0))
sketch11.addConstraint(Sketcher.Constraint("DistanceY", 2, 1, 2, 2, 17.75))
sketch11.addConstraint(Sketcher.Constraint("DistanceX", -1, 1, 0, 2, 22.25))
groove6 = body.newObject("PartDesign::Groove", "Groove005")
groove6.Profile = sketch11
groove6.ReferenceAxis = (sketch11, ["Axis0"])
groove6.Angle = 360

# Sketch on YZ plane
sketch12 = body.newObject("Sketcher::SketchObject", "Sketch011")
sketch12.AttachmentSupport = (doc.getObject("YZ_Plane"), [""])
sketch12.MapMode = "FlatFace"
sketch12.AttachmentOffset = App.Placement(V(0, 0, 316.45), App.Rotation())
add_polygon(sketch12, [(22.2, 46), (22.2, 26.2), (18.9, 28.2), (18.9, 46)])  # lines 0-3
sketch12.addGeometry(Part.LineSegment(V(22.2, 26.2, 0), V(22.2, 46, 0)), True)  # axis
sketch12.addConstraint(Sketcher.Constraint("Vertical", 0))
sketch12.addConstraint(Sketcher.Constraint("Vertical", 2))
sketch12.addConstraint(Sketcher.Constraint("Horizontal", 3))
sketch12.addConstraint(Sketcher.Constraint("Vertical", 4))
sketch12.addConstraint(Sketcher.Constraint("Coincident", 4, 1, 0, 2))
sketch12.addConstraint(Sketcher.Constraint("Horizontal", 2, 2, 4, 2))
sketch12.addConstraint(Sketcher.Constraint("Angle", 1, Q("149 deg")))
sketch12.addConstraint(Sketcher.Constraint("DistanceX", 3, 1, 3, 2, 3.4))
sketch12.addConstraint(Sketcher.Constraint("DistanceY", -1, 1, 2, 2, 46.0))
sketch12.addConstraint(Sketcher.Constraint("DistanceY", 2, 1, 2, 2, 17.75))
sketch12.addConstraint(Sketcher.Constraint("DistanceX", -1, 1, 0, 2, 22.25))
groove7 = body.newObject("PartDesign::Groove", "Groove006")
groove7.Profile = sketch12
groove7.ReferenceAxis = (sketch12, ["Axis0"])
groove7.Angle = 360

# Sketch on YZ plane
sketch13 = body.newObject("Sketcher::SketchObject", "Sketch012")
sketch13.AttachmentSupport = (doc.getObject("YZ_Plane"), [""])
sketch13.MapMode = "FlatFace"
sketch13.AttachmentOffset = App.Placement(V(0, 0, 316.45), App.Rotation())
add_polygon(sketch13, [(-22.2, 46), (-22.2, 26.2), (-25.6, 28.2), (-25.6, 46)])  # lines 0-3
sketch13.addGeometry(Part.LineSegment(V(-22.2, 26.2, 0), V(-22.2, 46, 0)), True)  # axis
sketch13.addConstraint(Sketcher.Constraint("Vertical", 0))
sketch13.addConstraint(Sketcher.Constraint("Vertical", 2))
sketch13.addConstraint(Sketcher.Constraint("Horizontal", 3))
sketch13.addConstraint(Sketcher.Constraint("Vertical", 4))
sketch13.addConstraint(Sketcher.Constraint("Coincident", 4, 1, 0, 2))
sketch13.addConstraint(Sketcher.Constraint("Horizontal", 2, 2, 4, 2))
sketch13.addConstraint(Sketcher.Constraint("Angle", 1, Q("149 deg")))
sketch13.addConstraint(Sketcher.Constraint("DistanceX", 3, 1, 3, 2, 3.4))
sketch13.addConstraint(Sketcher.Constraint("DistanceY", -1, 1, 2, 2, 46.0))
sketch13.addConstraint(Sketcher.Constraint("DistanceY", 2, 1, 2, 2, 17.75))
sketch13.addConstraint(Sketcher.Constraint("DistanceX", 0, 2, -1, 1, 22.25))
groove8 = body.newObject("PartDesign::Groove", "Groove007")
groove8.Profile = sketch13
groove8.ReferenceAxis = (sketch13, ["Axis0"])
groove8.Angle = 360

doc.recompute()
